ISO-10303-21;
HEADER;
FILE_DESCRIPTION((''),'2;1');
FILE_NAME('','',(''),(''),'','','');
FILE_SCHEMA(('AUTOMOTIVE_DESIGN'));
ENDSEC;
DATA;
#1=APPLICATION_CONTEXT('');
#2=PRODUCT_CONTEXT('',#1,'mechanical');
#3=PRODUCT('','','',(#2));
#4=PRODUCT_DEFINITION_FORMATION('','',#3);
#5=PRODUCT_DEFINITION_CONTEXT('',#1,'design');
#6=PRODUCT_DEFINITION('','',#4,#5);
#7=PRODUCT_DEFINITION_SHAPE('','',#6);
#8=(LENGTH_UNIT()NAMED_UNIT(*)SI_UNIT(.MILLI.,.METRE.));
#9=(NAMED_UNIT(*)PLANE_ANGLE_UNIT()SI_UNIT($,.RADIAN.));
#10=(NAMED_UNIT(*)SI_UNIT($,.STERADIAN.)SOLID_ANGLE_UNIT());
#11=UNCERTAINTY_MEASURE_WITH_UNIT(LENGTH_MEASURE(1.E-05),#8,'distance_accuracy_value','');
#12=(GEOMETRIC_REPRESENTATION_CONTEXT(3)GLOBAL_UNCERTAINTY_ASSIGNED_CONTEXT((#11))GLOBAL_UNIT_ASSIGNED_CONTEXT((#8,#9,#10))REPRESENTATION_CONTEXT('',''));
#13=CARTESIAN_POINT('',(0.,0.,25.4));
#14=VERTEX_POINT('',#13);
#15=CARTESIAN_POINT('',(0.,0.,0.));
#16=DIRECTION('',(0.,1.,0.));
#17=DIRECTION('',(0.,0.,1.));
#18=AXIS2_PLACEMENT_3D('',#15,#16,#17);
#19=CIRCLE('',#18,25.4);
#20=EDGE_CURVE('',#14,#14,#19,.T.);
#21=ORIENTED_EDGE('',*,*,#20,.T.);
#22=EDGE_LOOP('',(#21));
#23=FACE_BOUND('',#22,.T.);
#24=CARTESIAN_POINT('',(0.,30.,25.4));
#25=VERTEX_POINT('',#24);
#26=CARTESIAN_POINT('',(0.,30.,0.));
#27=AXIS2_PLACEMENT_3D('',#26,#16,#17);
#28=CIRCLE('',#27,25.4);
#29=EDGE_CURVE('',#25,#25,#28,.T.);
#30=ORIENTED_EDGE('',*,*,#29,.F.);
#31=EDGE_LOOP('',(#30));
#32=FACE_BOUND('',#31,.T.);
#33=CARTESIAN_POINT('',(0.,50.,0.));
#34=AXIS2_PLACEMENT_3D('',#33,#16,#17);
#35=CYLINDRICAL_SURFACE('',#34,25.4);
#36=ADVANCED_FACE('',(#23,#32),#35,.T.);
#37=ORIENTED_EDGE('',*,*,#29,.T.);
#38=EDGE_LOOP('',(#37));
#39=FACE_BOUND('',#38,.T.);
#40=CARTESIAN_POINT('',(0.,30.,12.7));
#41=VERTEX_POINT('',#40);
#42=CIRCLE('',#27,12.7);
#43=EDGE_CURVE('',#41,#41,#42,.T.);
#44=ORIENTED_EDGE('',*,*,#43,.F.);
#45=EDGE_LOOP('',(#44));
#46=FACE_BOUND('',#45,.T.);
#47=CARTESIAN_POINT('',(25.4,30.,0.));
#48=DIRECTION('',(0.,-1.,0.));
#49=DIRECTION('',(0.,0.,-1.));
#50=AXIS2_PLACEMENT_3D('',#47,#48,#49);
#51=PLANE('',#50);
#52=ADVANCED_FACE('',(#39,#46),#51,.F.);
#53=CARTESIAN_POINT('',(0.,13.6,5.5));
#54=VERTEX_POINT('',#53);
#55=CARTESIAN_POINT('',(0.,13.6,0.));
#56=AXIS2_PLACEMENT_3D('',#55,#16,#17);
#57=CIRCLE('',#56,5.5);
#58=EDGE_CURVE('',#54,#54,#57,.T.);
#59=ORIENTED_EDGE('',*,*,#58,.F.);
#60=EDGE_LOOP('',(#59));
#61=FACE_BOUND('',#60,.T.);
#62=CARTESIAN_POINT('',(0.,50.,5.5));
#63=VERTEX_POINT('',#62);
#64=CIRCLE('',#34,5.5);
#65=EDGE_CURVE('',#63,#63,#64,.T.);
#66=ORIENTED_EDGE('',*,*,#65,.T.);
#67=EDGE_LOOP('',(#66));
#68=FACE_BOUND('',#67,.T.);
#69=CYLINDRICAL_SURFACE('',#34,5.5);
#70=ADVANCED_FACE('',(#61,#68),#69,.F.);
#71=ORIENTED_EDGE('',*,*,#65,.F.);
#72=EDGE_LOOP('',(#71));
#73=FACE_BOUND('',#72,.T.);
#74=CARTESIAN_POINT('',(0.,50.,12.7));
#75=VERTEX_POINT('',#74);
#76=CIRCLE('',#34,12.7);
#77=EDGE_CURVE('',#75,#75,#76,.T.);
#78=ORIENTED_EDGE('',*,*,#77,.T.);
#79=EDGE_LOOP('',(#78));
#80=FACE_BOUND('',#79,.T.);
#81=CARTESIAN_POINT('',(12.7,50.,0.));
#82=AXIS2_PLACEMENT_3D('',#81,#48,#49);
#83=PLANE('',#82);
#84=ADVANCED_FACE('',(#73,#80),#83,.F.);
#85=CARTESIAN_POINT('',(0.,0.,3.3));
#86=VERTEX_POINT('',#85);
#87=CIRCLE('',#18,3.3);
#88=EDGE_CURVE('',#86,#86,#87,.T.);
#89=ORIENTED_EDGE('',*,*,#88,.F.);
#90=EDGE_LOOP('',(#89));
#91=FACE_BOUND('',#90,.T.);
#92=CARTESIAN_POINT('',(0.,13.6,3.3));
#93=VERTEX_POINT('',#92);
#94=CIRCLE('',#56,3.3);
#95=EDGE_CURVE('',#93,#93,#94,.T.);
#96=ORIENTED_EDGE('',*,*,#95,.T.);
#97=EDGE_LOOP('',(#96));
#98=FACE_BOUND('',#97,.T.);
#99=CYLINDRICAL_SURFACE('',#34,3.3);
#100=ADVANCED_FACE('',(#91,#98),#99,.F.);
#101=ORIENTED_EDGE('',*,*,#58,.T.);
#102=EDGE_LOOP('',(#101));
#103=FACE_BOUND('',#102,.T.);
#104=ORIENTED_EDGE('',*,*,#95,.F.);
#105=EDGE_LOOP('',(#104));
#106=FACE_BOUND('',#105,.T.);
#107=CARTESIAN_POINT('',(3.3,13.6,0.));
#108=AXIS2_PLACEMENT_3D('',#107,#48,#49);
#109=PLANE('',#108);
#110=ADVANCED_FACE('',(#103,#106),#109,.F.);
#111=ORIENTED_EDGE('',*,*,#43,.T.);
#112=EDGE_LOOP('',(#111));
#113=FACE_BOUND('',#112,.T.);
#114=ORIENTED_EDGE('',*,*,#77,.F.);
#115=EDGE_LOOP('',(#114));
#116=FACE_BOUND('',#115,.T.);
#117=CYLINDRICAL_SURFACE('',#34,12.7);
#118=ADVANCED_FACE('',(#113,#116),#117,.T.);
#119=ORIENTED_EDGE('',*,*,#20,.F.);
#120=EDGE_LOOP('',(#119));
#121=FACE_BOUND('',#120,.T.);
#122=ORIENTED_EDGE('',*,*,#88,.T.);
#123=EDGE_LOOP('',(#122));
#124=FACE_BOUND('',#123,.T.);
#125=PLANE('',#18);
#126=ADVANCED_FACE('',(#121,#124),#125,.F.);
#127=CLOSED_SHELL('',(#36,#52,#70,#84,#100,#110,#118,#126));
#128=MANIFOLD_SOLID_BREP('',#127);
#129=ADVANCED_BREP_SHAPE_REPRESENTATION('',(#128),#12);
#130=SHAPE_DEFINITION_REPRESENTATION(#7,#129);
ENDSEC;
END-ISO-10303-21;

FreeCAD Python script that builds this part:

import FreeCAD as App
import Part
import Sketcher

doc = App.newDocument("Part")
params = doc.addObject("Spreadsheet::Sheet", "Params")
for row, (alias, value) in enumerate([
    ("sketch1_height", "50 mm"),
    ("sketch1_height2", "30 mm"),
    ("sketch1_width", "25.4 mm"),
    ("revolution_angle", "360 deg"),
    ("sketch2_diameter", "6.6 mm"),
    ("hole_diameter", "6.6 mm"),
    ("hole_cbore_diameter", "11 mm"),
    ("hole_cbore_depth", "36.4 mm"),
], start=1):
    params.set(f"A{row}", alias)
    params.set(f"B{row}", "=" + value)
    params.setAlias(f"B{row}", alias)

body = doc.addObject("PartDesign::Body", "Body")

# Sketch on XY plane
sketch1 = body.newObject("Sketcher::SketchObject", "Sketch")
sketch1.AttachmentSupport = (doc.getObject("XY_Plane"), [""])
sketch1.MapMode = "FlatFace"
sketch1.addGeometry([
    Part.LineSegment(App.Vector(0, 50, 0), App.Vector(0, 0, 0)),  # 0
    Part.LineSegment(App.Vector(0, 0, 0), App.Vector(25.4, 0, 0)),  # 1
    Part.LineSegment(App.Vector(25.4, 0, 0), App.Vector(25.4, 30, 0)),  # 2
    Part.LineSegment(App.Vector(25.4, 30, 0), App.Vector(12.7, 30, 0)),  # 3
    Part.LineSegment(App.Vector(12.7, 30, 0), App.Vector(12.7, 50, 0)),  # 4
    Part.LineSegment(App.Vector(12.7, 50, 0), App.Vector(0, 50, 0)),  # 5
], False)
sketch1.addConstraint([
    Sketcher.Constraint("Coincident", 0, 2, 1, 1),
    Sketcher.Constraint("Coincident", 1, 2, 2, 1),
    Sketcher.Constraint("Coincident", 2, 2, 3, 1),
    Sketcher.Constraint("Coincident", 3, 2, 4, 1),
    Sketcher.Constraint("Coincident", 4, 2, 5, 1),
    Sketcher.Constraint("Coincident", 5, 2, 0, 1),
    Sketcher.Constraint("Vertical", 0),
    Sketcher.Constraint("Horizontal", 1),
    Sketcher.Constraint("Vertical", 2),
    Sketcher.Constraint("Horizontal", 3),
    Sketcher.Constraint("Vertical", 4),
    Sketcher.Constraint("Horizontal", 5),
    Sketcher.Constraint("Coincident", 0, 2, -1, 1),
    Sketcher.Constraint("Equal", 3, 5),
    Sketcher.Constraint("DistanceY", 0, 2, 0, 1, 50.0),
    Sketcher.Constraint("DistanceY", 2, 1, 2, 2, 30.0),
    Sketcher.Constraint("DistanceX", 1, 1, 1, 2, 25.4),
])
sketch1.setExpression("Constraints[14]", "Params.sketch1_height")
sketch1.setExpression("Constraints[15]", "Params.sketch1_height2")
sketch1.setExpression("Constraints[16]", "Params.sketch1_width")
revolution = body.newObject("PartDesign::Revolution", "Revolution")
revolution.Profile = sketch1
revolution.ReferenceAxis = (sketch1, ["V_Axis"])
revolution.setExpression("Angle", "Params.revolution_angle")

# Sketch on XZ plane
sketch2 = body.newObject("Sketcher::SketchObject", "Sketch001")
sketch2.AttachmentSupport = (doc.getObject("XZ_Plane"), [""])
sketch2.MapMode = "FlatFace"
sketch2.AttachmentOffset = App.Placement(App.Vector(0, 0, -50), App.Rotation())
sketch2.addGeometry(Part.Circle(App.Vector(0, 0, 0), App.Vector(0, 0, 1), 3.3), False)
sketch2.addConstraint([
    Sketcher.Constraint("Coincident", 0, 3, -1, 1),
    Sketcher.Constraint("Diameter", 0, 6.6),
])
sketch2.setExpression("Constraints[1]", "Params.sketch2_diameter")
doc.recompute()
hole = body.newObject("PartDesign::Hole", "Hole")
hole.Profile = sketch2
hole.ThreadType = "None"
hole.setExpression("Diameter", "Params.hole_diameter")
hole.DepthType = "ThroughAll"
hole.HoleCutType = "Counterbore"
hole.setExpression("HoleCutDiameter", "Params.hole_cbore_diameter")
hole.setExpression("HoleCutDepth", "Params.hole_cbore_depth")
hole.Reversed = True

doc.recompute()
